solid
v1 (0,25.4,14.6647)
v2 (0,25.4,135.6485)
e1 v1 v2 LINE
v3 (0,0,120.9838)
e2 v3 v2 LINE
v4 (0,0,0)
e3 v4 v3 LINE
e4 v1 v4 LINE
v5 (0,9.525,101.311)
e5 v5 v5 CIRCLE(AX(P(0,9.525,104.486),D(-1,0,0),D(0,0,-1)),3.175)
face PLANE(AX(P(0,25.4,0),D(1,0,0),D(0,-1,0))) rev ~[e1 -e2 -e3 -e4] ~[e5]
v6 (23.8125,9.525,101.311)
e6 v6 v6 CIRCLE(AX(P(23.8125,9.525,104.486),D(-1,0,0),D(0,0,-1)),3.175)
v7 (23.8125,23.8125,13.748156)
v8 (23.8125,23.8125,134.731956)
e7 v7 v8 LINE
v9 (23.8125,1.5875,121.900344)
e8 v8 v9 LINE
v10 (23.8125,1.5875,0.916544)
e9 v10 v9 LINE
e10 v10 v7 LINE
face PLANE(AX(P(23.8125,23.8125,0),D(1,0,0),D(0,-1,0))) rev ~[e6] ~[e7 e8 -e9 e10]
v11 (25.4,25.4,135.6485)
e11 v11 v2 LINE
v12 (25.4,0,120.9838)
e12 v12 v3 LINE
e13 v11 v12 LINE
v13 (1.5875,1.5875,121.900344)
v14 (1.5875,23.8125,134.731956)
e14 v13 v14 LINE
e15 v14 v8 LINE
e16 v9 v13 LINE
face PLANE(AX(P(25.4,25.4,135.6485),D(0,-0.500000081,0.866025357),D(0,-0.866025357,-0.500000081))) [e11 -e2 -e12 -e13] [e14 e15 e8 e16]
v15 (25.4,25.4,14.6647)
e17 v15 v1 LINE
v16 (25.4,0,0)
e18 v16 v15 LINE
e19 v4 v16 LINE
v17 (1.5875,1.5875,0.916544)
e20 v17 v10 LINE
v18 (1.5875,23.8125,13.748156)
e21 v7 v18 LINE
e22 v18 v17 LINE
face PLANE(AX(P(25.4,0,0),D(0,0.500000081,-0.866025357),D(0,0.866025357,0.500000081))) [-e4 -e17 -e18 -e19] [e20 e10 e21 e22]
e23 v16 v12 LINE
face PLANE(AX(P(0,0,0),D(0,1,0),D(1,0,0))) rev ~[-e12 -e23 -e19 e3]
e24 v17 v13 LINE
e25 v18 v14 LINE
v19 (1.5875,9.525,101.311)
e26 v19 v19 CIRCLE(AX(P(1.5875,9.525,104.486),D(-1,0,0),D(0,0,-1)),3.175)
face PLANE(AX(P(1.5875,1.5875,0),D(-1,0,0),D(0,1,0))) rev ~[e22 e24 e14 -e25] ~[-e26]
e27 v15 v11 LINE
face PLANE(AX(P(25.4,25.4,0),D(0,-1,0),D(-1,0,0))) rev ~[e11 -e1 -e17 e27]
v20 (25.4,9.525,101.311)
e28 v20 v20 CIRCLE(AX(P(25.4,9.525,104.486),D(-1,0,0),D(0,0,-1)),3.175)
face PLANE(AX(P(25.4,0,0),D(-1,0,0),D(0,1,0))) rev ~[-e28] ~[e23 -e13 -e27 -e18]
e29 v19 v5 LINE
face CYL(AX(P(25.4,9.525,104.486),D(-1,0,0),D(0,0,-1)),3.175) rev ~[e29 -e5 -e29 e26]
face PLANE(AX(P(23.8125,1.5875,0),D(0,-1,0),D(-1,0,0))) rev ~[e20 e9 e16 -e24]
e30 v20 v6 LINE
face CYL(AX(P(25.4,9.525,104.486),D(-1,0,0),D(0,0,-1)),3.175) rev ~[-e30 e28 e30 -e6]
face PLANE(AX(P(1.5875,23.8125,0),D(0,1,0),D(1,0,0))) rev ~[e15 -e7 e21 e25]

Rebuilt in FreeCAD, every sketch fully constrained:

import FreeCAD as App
import Part
import Sketcher

V = App.Vector
Q = App.Units.Quantity

doc = App.newDocument("Part")
body = doc.addObject("PartDesign::Body", "Body")

sketch1 = doc.addObject("Sketcher::SketchObject", "Sketch")
body.addObject(sketch1)
sketch1.AttachmentSupport = (doc.XY_Plane, [""])
sketch1.MapMode = "FlatFace"
sketch1.addGeometry([
    Part.LineSegment(V(0, 25, 0), V(0, 0, 0)),
    Part.LineSegment(V(0, 0, 0), V(25, 0, 0)),
    Part.LineSegment(V(25, 0, 0), V(25, 25, 0)),
    Part.LineSegment(V(25, 25, 0), V(0, 25, 0)),
    Part.LineSegment(V(2, 2, 0), V(2, 24, 0)),
    Part.LineSegment(V(2, 24, 0), V(24, 24, 0)),
    Part.LineSegment(V(24, 24, 0), V(24, 2, 0)),
    Part.LineSegment(V(24, 2, 0), V(2, 2, 0)),
], False)
sketch1.addConstraint([
    Sketcher.Constraint("Coincident", 0, 2, 1, 1),
    Sketcher.Constraint("Coincident", 1, 2, 2, 1),
    Sketcher.Constraint("Coincident", 2, 2, 3, 1),
    Sketcher.Constraint("Coincident", 3, 2, 0, 1),
    Sketcher.Constraint("Coincident", 4, 2, 5, 1),
    Sketcher.Constraint("Coincident", 5, 2, 6, 1),
    Sketcher.Constraint("Coincident", 6, 2, 7, 1),
    Sketcher.Constraint("Coincident", 7, 2, 4, 1),
    Sketcher.Constraint("Vertical", 0),
    Sketcher.Constraint("Horizontal", 1),
    Sketcher.Constraint("Vertical", 2),
    Sketcher.Constraint("Horizontal", 3),
    Sketcher.Constraint("Vertical", 4),
    Sketcher.Constraint("Horizontal", 5),
    Sketcher.Constraint("Vertical", 6),
    Sketcher.Constraint("Horizontal", 7),
    Sketcher.Constraint("Coincident", 0, 2, -1, 1),
    Sketcher.Constraint("Equal", 3, 0),
    Sketcher.Constraint("Equal", 7, 4),
    Sketcher.Constraint("DistanceX", 1, 1, 1, 2, Q("1 in")),
    Sketcher.Constraint("DistanceX", -1, 1, 4, 2, Q("0.0625 in")),
    Sketcher.Constraint("DistanceY", -1, 1, 6, 2, Q("0.0625 in")),
    Sketcher.Constraint("DistanceY", 4, 2, 3, 2, Q("0.0625 in")),
])
pad1 = doc.addObject("PartDesign::Pad", "Pad")
body.addObject(pad1)
pad1.Profile = sketch1
pad1.Length = Q("8 in")

sketch2 = doc.addObject("Sketcher::SketchObject", "Sketch001")
body.addObject(sketch2)
sketch2.AttachmentSupport = (doc.YZ_Plane, [""])
sketch2.MapMode = "FlatFace"
sketch2.AttachmentOffset = App.Placement(V(0, 0, 1 * 25.4), App.Rotation())
sketch2.addGeometry([
    Part.LineSegment(V(0, 0, 0), V(25, 0, 0)),
    Part.LineSegment(V(25, 0, 0), V(25, 15, 0)),
    Part.LineSegment(V(25, 15, 0), V(0, 0, 0)),
], False)
sketch2.addConstraint([
    Sketcher.Constraint("Coincident", 0, 2, 1, 1),
    Sketcher.Constraint("Coincident", 1, 2, 2, 1),
    Sketcher.Constraint("Coincident", 2, 2, 0, 1),
    Sketcher.Constraint("Horizontal", 0),
    Sketcher.Constraint("Vertical", 1),
    Sketcher.Constraint("Coincident", 2, 2, -1, 1),
    Sketcher.Constraint("DistanceX", 0, 1, 0, 2, Q("1 in")),
    Sketcher.Constraint("Angle", 2, Q("-150 deg")),
])
pocket1 = doc.addObject("PartDesign::Pocket", "Pocket")
body.addObject(pocket1)
pocket1.Profile = sketch2
pocket1.Length = Q("1 in")

sketch3 = doc.addObject("Sketcher::SketchObject", "Sketch002")
body.addObject(sketch3)
sketch3.AttachmentSupport = (doc.YZ_Plane, [""])
sketch3.MapMode = "FlatFace"
sketch3.AttachmentOffset = App.Placement(V(0, 0, 1 * 25.4), App.Rotation())
sketch3.addGeometry([
    Part.LineSegment(V(25, 189, 0), V(25, 203, 0)),
    Part.LineSegment(V(25, 203, 0), V(0, 203, 0)),
    Part.LineSegment(V(0, 203, 0), V(0, 174, 0)),
    Part.LineSegment(V(0, 174, 0), V(25, 189, 0)),
], False)
sketch3.addConstraint([
    Sketcher.Constraint("Coincident", 0, 2, 1, 1),
    Sketcher.Constraint("Coincident", 1, 2, 2, 1),
    Sketcher.Constraint("Coincident", 2, 2, 3, 1),
    Sketcher.Constraint("Coincident", 3, 2, 0, 1),
    Sketcher.Constraint("Vertical", 0),
    Sketcher.Constraint("Horizontal", 1),
    Sketcher.Constraint("Vertical", 2),
    Sketcher.Constraint("PointOnObject", 1, 2, -2),
    Sketcher.Constraint("DistanceX", 1, 2, 1, 1, Q("1 in")),
    Sketcher.Constraint("DistanceY", -1, 1, 0, 2, Q("8 in")),
    Sketcher.Constraint("Angle", 3, Q("30 deg")),
    Sketcher.Constraint("DistanceY", 2, 2, 2, 1, 28.7436),
])
pocket2 = doc.addObject("PartDesign::Pocket", "Pocket001")
body.addObject(pocket2)
pocket2.Profile = sketch3
pocket2.Length = Q("1 in")

sketch4 = doc.addObject("Sketcher::SketchObject", "Sketch003")
body.addObject(sketch4)
sketch4.AttachmentSupport = (doc.YZ_Plane, [""])
sketch4.MapMode = "FlatFace"
sketch4.AttachmentOffset = App.Placement(V(0, 0, 1 * 25.4), App.Rotation())
sketch4.addGeometry([
    Part.LineSegment(V(25, 136, 0), V(25, 189, 0)),
    Part.LineSegment(V(25, 189, 0), V(0, 174, 0)),
    Part.LineSegment(V(0, 174, 0), V(0, 121, 0)),
    Part.LineSegment(V(0, 121, 0), V(25, 136, 0)),
], False)
sketch4.addConstraint([
    Sketcher.Constraint("Coincident", 0, 2, 1, 1),
    Sketcher.Constraint("Coincident", 1, 2, 2, 1),
    Sketcher.Constraint("Coincident", 2, 2, 3, 1),
    Sketcher.Constraint("Coincident", 3, 2, 0, 1),
    Sketcher.Constraint("Vertical", 0),
    Sketcher.Constraint("Vertical", 2),
    Sketcher.Constraint("PointOnObject", 1, 2, -2),
    Sketcher.Constraint("Parallel", 1, 3),
    Sketcher.Constraint("DistanceX", -1, 1, 0, 2, Q("1 in")),
    Sketcher.Constraint("Angle", 1, Q("-150 deg")),
    Sketcher.Constraint("DistanceY", 0, 1, 0, 2, 53.4726),
    Sketcher.Constraint("DistanceY", -1, 1, 3, 2, Q("5.3405 in")),
])
pocket3 = doc.addObject("PartDesign::Pocket", "Pocket002")
body.addObject(pocket3)
pocket3.Profile = sketch4
pocket3.Length = Q("1 in")

sketch5 = doc.addObject("Sketcher::SketchObject", "Sketch004")
body.addObject(sketch5)
sketch5.AttachmentSupport = (doc.YZ_Plane, [""])
sketch5.MapMode = "FlatFace"
sketch5.AttachmentOffset = App.Placement(V(0, 0, 1 * 25.4), App.Rotation())
sketch5.addGeometry(Part.Circle(V(9.5, 104.5, 0), V(0, 0, 1), 3.2), False)
sketch5.addConstraint([
    Sketcher.Constraint("Diameter", 0, Q("0.25 in")),
    Sketcher.Constraint("DistanceX", -1, 1, 0, 3, Q("0.375 in")),
    Sketcher.Constraint("DistanceY", -1, 1, 0, 3, 104.486),
])
doc.recompute()
hole = doc.addObject("PartDesign::Hole", "Hole")
body.addObject(hole)
hole.Profile = sketch5
hole.ThreadType = "None"
hole.Diameter = Q("0.25 in")
hole.DepthType = "ThroughAll"

doc.recompute()
